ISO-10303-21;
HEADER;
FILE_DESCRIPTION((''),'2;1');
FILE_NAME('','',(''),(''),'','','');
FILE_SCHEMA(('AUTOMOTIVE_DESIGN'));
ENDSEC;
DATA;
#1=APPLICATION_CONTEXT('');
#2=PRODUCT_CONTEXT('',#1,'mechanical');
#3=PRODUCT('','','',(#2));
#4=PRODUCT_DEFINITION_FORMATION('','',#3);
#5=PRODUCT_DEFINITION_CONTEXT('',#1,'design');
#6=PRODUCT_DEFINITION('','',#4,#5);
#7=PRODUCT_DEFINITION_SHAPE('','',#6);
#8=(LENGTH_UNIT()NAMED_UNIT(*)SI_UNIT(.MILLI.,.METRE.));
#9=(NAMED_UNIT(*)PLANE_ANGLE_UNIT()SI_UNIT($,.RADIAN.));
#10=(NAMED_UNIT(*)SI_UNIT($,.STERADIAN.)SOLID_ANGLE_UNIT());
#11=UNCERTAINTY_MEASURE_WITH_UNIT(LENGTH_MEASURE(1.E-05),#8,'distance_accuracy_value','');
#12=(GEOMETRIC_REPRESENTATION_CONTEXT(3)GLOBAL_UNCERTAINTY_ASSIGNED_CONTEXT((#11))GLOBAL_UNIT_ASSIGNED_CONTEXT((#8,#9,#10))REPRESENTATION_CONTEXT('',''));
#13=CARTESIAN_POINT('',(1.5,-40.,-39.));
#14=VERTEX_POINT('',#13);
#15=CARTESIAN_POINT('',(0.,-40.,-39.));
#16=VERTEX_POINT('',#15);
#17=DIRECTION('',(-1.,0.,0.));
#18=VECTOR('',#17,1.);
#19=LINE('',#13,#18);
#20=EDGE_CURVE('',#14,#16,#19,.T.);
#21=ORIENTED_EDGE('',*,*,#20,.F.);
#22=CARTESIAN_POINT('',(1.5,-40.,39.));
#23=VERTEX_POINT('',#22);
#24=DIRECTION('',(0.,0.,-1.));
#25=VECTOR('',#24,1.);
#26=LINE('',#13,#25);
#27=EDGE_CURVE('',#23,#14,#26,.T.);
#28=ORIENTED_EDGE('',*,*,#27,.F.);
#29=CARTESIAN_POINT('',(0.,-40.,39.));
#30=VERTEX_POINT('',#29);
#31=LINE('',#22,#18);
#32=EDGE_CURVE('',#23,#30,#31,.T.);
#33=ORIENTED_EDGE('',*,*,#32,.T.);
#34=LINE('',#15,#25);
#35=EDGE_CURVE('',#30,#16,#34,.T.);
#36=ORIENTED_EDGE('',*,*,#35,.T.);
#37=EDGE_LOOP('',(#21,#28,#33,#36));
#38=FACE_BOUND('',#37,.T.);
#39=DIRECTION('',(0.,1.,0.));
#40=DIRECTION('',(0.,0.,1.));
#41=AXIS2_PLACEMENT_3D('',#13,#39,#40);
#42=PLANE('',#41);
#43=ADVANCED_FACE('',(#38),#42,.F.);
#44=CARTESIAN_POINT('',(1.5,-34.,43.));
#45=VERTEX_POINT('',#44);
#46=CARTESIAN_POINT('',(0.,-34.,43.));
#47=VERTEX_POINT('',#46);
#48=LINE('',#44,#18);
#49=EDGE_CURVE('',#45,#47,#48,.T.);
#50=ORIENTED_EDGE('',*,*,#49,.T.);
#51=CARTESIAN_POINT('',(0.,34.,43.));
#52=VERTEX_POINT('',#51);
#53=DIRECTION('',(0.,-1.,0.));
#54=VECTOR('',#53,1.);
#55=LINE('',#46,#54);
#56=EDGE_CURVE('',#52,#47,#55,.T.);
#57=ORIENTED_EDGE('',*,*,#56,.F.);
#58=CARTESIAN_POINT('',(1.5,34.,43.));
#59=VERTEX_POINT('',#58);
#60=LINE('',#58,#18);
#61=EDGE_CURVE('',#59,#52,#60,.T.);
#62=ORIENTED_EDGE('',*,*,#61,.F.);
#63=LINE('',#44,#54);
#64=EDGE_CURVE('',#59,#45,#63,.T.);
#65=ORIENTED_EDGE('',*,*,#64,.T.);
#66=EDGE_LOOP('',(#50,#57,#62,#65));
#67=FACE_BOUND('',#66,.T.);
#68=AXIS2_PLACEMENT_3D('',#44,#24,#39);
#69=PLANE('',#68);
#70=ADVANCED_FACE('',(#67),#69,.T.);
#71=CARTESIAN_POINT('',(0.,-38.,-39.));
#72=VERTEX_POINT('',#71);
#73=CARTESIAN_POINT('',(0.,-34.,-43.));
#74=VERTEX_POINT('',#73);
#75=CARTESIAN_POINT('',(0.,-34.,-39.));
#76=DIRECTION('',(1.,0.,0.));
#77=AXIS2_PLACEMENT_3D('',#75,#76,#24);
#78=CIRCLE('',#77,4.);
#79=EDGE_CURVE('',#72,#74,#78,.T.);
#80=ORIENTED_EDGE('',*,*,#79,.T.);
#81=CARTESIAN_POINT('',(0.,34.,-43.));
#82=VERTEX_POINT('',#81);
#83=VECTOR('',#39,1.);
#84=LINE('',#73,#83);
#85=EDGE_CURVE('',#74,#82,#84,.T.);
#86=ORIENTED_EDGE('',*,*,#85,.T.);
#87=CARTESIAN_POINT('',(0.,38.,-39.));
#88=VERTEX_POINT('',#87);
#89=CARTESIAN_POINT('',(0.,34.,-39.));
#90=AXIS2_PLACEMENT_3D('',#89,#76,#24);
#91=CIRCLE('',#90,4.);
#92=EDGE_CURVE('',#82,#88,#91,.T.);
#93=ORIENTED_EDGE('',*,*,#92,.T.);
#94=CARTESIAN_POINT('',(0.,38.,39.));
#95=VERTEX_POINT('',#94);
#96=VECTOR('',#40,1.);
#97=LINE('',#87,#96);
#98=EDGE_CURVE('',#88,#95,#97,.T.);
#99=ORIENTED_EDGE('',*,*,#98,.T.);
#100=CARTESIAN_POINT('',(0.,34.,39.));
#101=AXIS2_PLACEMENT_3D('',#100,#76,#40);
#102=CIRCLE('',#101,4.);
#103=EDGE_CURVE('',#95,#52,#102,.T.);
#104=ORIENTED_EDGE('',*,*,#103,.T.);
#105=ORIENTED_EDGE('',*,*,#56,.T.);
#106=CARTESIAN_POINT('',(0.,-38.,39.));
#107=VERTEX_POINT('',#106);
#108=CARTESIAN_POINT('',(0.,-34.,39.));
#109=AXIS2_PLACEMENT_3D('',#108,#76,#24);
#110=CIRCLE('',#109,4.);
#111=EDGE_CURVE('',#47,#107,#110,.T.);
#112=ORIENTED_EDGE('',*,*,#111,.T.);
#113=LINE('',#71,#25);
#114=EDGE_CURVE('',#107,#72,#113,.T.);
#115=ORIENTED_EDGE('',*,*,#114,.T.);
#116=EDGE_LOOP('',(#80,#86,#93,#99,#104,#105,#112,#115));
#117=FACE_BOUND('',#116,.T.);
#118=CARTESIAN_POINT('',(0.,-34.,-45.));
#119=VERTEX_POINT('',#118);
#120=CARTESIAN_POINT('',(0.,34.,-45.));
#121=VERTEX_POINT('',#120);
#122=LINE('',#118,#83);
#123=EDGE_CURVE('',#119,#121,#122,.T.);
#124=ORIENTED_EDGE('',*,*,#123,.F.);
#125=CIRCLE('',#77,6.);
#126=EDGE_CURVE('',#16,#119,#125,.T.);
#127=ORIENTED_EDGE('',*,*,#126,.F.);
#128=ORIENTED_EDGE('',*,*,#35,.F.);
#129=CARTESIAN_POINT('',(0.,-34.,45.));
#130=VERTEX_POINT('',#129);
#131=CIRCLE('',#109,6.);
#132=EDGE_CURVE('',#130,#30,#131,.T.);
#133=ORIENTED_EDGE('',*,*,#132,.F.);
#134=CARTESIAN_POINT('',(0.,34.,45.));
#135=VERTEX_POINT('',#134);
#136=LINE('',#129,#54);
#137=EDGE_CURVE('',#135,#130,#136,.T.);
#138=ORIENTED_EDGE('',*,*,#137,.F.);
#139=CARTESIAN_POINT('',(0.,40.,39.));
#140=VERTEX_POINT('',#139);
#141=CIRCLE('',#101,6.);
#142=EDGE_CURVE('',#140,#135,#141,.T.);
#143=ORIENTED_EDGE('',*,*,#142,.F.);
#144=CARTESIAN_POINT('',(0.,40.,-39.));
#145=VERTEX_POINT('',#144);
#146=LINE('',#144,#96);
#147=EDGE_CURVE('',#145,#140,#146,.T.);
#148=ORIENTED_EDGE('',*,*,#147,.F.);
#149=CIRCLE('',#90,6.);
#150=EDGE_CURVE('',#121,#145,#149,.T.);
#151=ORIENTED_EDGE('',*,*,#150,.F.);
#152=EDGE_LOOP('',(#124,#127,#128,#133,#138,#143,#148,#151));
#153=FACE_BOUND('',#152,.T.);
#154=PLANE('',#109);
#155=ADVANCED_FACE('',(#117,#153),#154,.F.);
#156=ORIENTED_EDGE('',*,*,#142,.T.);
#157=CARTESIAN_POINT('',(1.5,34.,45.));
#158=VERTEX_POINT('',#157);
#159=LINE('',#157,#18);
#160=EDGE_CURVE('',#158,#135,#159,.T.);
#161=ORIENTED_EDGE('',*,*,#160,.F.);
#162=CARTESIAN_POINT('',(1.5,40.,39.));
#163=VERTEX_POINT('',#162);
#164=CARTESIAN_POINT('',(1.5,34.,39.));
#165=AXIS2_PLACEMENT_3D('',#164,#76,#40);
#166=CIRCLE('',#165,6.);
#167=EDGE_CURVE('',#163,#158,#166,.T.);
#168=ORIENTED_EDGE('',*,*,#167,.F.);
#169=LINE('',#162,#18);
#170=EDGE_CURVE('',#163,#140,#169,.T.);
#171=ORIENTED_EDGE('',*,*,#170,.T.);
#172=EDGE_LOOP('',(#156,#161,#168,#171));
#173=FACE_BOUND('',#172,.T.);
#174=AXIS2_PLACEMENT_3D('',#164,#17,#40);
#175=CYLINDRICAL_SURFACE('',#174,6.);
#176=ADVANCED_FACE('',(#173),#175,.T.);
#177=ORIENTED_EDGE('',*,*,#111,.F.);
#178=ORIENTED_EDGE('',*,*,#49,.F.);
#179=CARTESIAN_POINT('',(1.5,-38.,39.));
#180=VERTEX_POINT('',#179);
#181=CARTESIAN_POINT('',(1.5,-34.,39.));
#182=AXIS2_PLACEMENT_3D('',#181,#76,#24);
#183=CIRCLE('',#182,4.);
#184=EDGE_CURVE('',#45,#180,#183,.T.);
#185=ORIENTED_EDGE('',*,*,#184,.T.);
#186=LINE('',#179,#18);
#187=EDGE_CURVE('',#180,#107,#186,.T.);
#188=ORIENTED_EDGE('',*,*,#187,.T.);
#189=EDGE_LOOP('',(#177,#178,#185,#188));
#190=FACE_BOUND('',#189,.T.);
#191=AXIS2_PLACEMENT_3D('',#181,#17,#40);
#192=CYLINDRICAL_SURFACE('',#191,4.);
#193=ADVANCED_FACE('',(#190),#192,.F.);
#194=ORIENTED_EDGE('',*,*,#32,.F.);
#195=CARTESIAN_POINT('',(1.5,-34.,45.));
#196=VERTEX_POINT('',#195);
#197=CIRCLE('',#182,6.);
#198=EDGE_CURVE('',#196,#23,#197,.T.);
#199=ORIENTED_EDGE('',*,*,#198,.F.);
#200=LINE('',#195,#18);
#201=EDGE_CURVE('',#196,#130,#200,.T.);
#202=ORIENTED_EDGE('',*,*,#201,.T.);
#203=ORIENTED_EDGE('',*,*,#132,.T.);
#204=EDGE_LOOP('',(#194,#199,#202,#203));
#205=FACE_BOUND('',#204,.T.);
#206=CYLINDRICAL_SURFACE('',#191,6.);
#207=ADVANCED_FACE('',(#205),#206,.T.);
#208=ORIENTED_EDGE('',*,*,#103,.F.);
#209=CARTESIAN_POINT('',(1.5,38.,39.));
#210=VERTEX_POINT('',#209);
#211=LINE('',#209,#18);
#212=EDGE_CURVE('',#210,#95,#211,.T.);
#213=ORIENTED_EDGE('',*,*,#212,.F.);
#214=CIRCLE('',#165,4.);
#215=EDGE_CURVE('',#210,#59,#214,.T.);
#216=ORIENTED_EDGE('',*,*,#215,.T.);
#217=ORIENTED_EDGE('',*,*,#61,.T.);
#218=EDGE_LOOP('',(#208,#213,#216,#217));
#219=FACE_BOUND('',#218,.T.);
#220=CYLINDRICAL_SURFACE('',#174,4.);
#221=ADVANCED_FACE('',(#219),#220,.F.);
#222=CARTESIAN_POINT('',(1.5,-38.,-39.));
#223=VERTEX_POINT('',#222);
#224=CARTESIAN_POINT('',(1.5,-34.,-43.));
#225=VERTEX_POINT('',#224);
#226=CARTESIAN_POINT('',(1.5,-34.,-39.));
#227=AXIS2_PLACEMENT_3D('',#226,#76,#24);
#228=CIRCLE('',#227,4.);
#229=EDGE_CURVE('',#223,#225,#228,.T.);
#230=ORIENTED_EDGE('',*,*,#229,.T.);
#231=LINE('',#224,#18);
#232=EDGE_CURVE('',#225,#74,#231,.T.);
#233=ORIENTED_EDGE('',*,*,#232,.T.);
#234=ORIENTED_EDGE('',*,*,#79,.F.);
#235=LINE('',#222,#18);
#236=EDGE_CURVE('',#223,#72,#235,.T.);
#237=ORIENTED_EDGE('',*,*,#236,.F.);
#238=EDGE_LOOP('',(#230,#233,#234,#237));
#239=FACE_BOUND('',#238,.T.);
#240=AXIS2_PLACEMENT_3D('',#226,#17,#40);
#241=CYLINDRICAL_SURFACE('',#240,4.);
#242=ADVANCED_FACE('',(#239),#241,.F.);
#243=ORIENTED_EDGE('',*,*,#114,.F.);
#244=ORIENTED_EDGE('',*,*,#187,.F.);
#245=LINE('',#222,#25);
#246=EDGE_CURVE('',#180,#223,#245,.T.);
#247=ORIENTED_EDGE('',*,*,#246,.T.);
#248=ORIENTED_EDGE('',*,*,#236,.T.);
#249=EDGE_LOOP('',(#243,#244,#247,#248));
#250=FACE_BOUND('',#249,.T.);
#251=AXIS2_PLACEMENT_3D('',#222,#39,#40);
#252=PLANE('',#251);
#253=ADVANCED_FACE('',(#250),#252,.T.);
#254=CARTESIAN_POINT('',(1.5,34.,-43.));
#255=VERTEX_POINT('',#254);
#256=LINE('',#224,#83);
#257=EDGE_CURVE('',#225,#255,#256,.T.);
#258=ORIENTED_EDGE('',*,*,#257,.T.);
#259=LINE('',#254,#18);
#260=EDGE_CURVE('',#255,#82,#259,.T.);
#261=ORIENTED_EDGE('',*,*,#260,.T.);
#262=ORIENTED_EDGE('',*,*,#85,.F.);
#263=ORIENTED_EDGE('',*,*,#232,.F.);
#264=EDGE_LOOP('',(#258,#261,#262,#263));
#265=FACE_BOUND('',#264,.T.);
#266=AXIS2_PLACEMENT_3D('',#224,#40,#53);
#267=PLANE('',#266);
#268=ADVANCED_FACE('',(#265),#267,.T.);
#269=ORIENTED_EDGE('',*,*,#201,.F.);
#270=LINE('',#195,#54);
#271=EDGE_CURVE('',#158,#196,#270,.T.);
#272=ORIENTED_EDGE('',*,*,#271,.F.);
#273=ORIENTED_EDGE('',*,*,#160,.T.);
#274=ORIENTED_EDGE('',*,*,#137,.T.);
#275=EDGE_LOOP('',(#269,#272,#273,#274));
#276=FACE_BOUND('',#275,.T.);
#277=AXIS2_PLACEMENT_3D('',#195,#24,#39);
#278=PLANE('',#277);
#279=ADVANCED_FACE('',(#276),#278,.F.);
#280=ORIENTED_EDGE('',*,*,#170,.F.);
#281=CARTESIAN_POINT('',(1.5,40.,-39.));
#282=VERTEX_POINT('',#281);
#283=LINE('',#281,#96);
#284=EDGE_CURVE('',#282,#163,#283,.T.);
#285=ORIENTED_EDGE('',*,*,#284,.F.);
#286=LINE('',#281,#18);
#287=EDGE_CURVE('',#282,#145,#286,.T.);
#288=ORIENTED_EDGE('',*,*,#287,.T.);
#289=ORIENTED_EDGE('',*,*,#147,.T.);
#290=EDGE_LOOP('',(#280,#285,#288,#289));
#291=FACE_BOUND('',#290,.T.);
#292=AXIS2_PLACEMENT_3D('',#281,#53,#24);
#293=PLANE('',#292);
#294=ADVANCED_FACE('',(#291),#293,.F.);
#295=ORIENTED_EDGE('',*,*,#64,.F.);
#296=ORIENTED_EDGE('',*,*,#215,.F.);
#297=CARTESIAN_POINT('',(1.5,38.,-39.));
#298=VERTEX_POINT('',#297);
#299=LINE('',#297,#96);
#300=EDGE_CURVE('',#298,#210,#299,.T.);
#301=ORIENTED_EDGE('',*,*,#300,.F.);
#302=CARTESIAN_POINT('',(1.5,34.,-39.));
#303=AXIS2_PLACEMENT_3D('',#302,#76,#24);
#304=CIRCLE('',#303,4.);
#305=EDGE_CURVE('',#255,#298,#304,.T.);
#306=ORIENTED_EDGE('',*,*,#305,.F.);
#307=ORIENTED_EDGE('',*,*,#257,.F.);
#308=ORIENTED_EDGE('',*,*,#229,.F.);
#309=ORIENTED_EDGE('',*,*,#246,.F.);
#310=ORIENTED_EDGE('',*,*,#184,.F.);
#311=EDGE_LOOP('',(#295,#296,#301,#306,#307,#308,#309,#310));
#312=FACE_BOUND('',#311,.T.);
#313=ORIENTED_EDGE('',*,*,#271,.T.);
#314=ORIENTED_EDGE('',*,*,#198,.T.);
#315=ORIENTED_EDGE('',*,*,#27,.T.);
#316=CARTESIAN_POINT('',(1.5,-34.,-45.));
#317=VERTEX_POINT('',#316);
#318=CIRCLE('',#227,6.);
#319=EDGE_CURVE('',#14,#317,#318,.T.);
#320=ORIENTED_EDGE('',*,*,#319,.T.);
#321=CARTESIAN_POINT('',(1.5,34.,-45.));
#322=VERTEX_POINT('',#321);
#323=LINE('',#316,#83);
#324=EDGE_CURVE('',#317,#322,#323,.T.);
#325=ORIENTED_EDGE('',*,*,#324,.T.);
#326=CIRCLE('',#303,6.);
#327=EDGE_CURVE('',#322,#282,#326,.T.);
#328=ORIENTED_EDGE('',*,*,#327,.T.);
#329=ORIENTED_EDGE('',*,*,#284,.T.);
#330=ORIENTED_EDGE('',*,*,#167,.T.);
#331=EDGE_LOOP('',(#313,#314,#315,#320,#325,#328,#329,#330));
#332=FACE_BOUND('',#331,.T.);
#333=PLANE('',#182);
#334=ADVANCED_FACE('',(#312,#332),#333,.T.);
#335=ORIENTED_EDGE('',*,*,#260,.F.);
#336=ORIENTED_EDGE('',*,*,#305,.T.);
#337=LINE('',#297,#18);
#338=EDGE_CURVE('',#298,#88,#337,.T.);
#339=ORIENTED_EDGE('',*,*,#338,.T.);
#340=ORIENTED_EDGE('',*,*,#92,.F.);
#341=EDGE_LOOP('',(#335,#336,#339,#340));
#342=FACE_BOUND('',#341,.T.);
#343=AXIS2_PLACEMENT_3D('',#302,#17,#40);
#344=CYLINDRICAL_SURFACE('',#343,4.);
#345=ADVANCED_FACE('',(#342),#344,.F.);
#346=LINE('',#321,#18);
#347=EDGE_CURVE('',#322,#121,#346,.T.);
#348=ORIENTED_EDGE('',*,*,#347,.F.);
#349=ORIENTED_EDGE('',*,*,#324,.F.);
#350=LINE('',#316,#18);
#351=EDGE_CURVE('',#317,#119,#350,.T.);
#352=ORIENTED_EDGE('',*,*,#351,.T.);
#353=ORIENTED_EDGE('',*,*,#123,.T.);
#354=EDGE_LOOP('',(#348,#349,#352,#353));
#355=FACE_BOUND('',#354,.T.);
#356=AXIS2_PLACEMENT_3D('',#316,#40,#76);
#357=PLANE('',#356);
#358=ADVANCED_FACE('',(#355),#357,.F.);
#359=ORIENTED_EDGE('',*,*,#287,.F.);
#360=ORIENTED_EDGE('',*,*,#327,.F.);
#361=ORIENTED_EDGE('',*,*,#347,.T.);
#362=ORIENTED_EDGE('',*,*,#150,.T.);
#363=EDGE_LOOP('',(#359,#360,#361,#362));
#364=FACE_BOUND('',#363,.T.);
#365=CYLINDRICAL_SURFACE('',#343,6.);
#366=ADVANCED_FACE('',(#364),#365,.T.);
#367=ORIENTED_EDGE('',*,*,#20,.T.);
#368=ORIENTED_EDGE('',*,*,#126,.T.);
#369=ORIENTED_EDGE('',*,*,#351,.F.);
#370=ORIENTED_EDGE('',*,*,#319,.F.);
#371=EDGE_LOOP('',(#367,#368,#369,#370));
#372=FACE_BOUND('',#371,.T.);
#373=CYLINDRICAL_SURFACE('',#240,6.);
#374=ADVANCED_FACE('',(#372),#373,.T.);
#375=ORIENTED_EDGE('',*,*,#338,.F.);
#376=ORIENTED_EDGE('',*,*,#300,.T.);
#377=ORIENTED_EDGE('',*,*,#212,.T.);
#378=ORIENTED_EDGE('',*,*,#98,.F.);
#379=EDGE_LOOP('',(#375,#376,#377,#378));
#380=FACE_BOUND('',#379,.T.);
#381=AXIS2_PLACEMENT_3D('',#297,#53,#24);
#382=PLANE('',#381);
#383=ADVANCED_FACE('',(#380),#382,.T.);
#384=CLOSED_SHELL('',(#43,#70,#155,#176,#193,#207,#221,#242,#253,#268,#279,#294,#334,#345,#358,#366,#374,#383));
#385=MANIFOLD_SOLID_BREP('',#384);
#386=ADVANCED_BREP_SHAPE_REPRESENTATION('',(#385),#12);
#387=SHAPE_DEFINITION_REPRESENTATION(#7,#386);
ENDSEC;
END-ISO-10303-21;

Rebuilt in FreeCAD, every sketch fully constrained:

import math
import FreeCAD as App
import Part
import Sketcher

V = App.Vector
Q = App.Units.Quantity

doc = App.newDocument("Part")
body = doc.addObject("PartDesign::Body", "Body")

sketch1 = doc.addObject("Sketcher::SketchObject", "Sketch")
body.addObject(sketch1)
sketch1.AttachmentSupport = (doc.YZ_Plane, [""])
sketch1.MapMode = "FlatFace"
sketch1.addGeometry([
    Part.LineSegment(V(-40, 39, 0), V(-40, -39, 0)),
    Part.ArcOfCircle(Part.Circle(V(-34, -39, 0), V(0, 0, 1), 6), math.radians(180), math.radians(270)),
    Part.LineSegment(V(-34, -45, 0), V(34, -45, 0)),
    Part.ArcOfCircle(Part.Circle(V(34, -39, 0), V(0, 0, 1), 6), math.radians(-90), math.radians(0)),
    Part.LineSegment(V(40, -39, 0), V(40, 39, 0)),
    Part.ArcOfCircle(Part.Circle(V(34, 39, 0), V(0, 0, 1), 6), math.radians(0), math.radians(90)),
    Part.LineSegment(V(34, 45, 0), V(-34, 45, 0)),
    Part.ArcOfCircle(Part.Circle(V(-34, 39, 0), V(0, 0, 1), 6), math.radians(90), math.radians(180)),
    Part.ArcOfCircle(Part.Circle(V(34, -39, 0), V(0, 0, 1), 4), math.radians(-90), math.radians(0)),
    Part.LineSegment(V(34, -43, 0), V(-34, -43, 0)),
    Part.ArcOfCircle(Part.Circle(V(-34, -39, 0), V(0, 0, 1), 4), math.radians(180), math.radians(270)),
    Part.LineSegment(V(-38, -39, 0), V(-38, 39, 0)),
    Part.ArcOfCircle(Part.Circle(V(-34, 39, 0), V(0, 0, 1), 4), math.radians(90), math.radians(180)),
    Part.LineSegment(V(-34, 43, 0), V(34, 43, 0)),
    Part.ArcOfCircle(Part.Circle(V(34, 39, 0), V(0, 0, 1), 4), math.radians(0), math.radians(90)),
    Part.LineSegment(V(38, 39, 0), V(38, -39, 0)),
], False)
sketch1.addConstraint([
    Sketcher.Constraint("Tangent", 0, 2, 1, 1),
    Sketcher.Constraint("Tangent", 1, 2, 2, 1),
    Sketcher.Constraint("Tangent", 2, 2, 3, 1),
    Sketcher.Constraint("Tangent", 3, 2, 4, 1),
    Sketcher.Constraint("Tangent", 4, 2, 5, 1),
    Sketcher.Constraint("Tangent", 5, 2, 6, 1),
    Sketcher.Constraint("Tangent", 6, 2, 7, 1),
    Sketcher.Constraint("Tangent", 7, 2, 0, 1),
    Sketcher.Constraint("Tangent", 8, 1, 9, 1),
    Sketcher.Constraint("Tangent", 9, 2, 10, 2),
    Sketcher.Constraint("Tangent", 10, 1, 11, 1),
    Sketcher.Constraint("Tangent", 11, 2, 12, 2),
    Sketcher.Constraint("Tangent", 12, 1, 13, 1),
    Sketcher.Constraint("Tangent", 13, 2, 14, 2),
    Sketcher.Constraint("Tangent", 14, 1, 15, 1),
    Sketcher.Constraint("Tangent", 15, 2, 8, 2),
    Sketcher.Constraint("Vertical", 0),
    Sketcher.Constraint("Horizontal", 2),
    Sketcher.Constraint("Vertical", 4),
    Sketcher.Constraint("Horizontal", 6),
    Sketcher.Constraint("Horizontal", 9),
    Sketcher.Constraint("Vertical", 11),
    Sketcher.Constraint("Horizontal", 13),
    Sketcher.Constraint("Vertical", 15),
    Sketcher.Constraint("Coincident", 8, 3, 3, 3),
    Sketcher.Constraint("Coincident", 10, 3, 1, 3),
    Sketcher.Constraint("Coincident", 12, 3, 7, 3),
    Sketcher.Constraint("Equal", 1, 3),
    Sketcher.Constraint("Equal", 3, 5),
    Sketcher.Constraint("Equal", 5, 7),
    Sketcher.Constraint("Equal", 12, 14),
    Sketcher.Constraint("Symmetric", 1, 3, 5, 3, -1, 1),
    Sketcher.Constraint("Radius", 1, Q("6 mm")),
    Sketcher.Constraint("Radius", 8, Q("4 mm")),
    Sketcher.Constraint("DistanceX", 2, 1, 2, 2, Q("68 mm")),
    Sketcher.Constraint("DistanceY", 0, 2, 0, 1, Q("78 mm")),
])
pad1 = doc.addObject("PartDesign::Pad", "Pad")
body.addObject(pad1)
pad1.Profile = sketch1
pad1.Length = 1.5

doc.recompute()
